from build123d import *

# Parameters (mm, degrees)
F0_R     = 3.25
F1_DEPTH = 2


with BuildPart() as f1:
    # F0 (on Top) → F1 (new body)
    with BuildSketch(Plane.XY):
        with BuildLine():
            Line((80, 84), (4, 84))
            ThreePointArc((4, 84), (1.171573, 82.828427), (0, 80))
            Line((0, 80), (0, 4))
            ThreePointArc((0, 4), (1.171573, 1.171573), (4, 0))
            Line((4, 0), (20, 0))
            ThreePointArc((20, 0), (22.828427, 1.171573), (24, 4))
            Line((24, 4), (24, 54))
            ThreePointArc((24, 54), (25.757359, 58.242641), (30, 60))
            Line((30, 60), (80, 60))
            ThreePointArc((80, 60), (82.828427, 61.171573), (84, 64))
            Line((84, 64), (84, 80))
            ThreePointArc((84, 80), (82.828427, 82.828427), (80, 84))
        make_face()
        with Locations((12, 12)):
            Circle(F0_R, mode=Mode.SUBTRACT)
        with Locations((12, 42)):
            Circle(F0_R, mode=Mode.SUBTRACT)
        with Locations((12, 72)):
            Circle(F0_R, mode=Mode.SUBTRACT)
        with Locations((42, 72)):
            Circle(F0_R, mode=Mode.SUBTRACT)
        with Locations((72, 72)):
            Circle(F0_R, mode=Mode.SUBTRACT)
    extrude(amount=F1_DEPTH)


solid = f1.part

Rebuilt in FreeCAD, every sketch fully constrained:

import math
import FreeCAD as App
import Part
import Sketcher

doc = App.newDocument("Part")
body = doc.addObject("PartDesign::Body", "Body")

# Sketch on XY plane
sketch1 = body.newObject("Sketcher::SketchObject", "Sketch")
sketch1.AttachmentSupport = (doc.getObject("XY_Plane"), [""])
sketch1.MapMode = "FlatFace"
sketch1.addGeometry([
    Part.LineSegment(App.Vector(80, 84, 0), App.Vector(4, 84, 0)),  # 0
    Part.ArcOfCircle(Part.Circle(App.Vector(4, 80, 0), App.Vector(0, 0, 1), 4), math.radians(90), math.radians(180)),  # 1
    Part.LineSegment(App.Vector(0, 80, 0), App.Vector(0, 4, 0)),  # 2
    Part.ArcOfCircle(Part.Circle(App.Vector(4, 4, 0), App.Vector(0, 0, 1), 4), math.radians(-180), math.radians(-90)),  # 3
    Part.LineSegment(App.Vector(4, 0, 0), App.Vector(20, 0, 0)),  # 4
    Part.ArcOfCircle(Part.Circle(App.Vector(20, 4, 0), App.Vector(0, 0, 1), 4), math.radians(-90), math.radians(0)),  # 5
    Part.LineSegment(App.Vector(24, 4, 0), App.Vector(24, 54, 0)),  # 6
    Part.ArcOfCircle(Part.Circle(App.Vector(30, 54, 0), App.Vector(0, 0, 1), 6), math.radians(90), math.radians(180)),  # 7
    Part.LineSegment(App.Vector(30, 60, 0), App.Vector(80, 60, 0)),  # 8
    Part.ArcOfCircle(Part.Circle(App.Vector(80, 64, 0), App.Vector(0, 0, 1), 4), math.radians(-90), math.radians(0)),  # 9
    Part.LineSegment(App.Vector(84, 64, 0), App.Vector(84, 80, 0)),  # 10
    Part.ArcOfCircle(Part.Circle(App.Vector(80, 80, 0), App.Vector(0, 0, 1), 4), math.radians(0), math.radians(90)),  # 11
    Part.Circle(App.Vector(12, 12, 0), App.Vector(0, 0, 1), 3.2),  # 12
    Part.Circle(App.Vector(12, 42, 0), App.Vector(0, 0, 1), 3.2),  # 13
    Part.Circle(App.Vector(12, 72, 0), App.Vector(0, 0, 1), 3.2),  # 14
    Part.Circle(App.Vector(42, 72, 0), App.Vector(0, 0, 1), 3.2),  # 15
    Part.Circle(App.Vector(72, 72, 0), App.Vector(0, 0, 1), 3.2),  # 16
], False)
sketch1.addConstraint([
    Sketcher.Constraint("Tangent", 0, 2, 1, 1),
    Sketcher.Constraint("Tangent", 1, 2, 2, 1),
    Sketcher.Constraint("Tangent", 2, 2, 3, 1),
    Sketcher.Constraint("Tangent", 3, 2, 4, 1),
    Sketcher.Constraint("Tangent", 4, 2, 5, 1),
    Sketcher.Constraint("Tangent", 5, 2, 6, 1),
    Sketcher.Constraint("Tangent", 6, 2, 7, 2),
    Sketcher.Constraint("Tangent", 7, 1, 8, 1),
    Sketcher.Constraint("Tangent", 8, 2, 9, 1),
    Sketcher.Constraint("Tangent", 9, 2, 10, 1),
    Sketcher.Constraint("Tangent", 10, 2, 11, 1),
    Sketcher.Constraint("Tangent", 11, 2, 0, 1),
    Sketcher.Constraint("Horizontal", 0),
    Sketcher.Constraint("Vertical", 2),
    Sketcher.Constraint("Horizontal", 4),
    Sketcher.Constraint("Vertical", 6),
    Sketcher.Constraint("Horizontal", 8),
    Sketcher.Constraint("Vertical", 10),
    Sketcher.Constraint("Equal", 1, 3),
    Sketcher.Constraint("Equal", 3, 5),
    Sketcher.Constraint("Equal", 5, 9),
    Sketcher.Constraint("Equal", 9, 11),
    Sketcher.Constraint("Equal", 12, 13),
    Sketcher.Constraint("Equal", 13, 14),
    Sketcher.Constraint("Equal", 14, 15),
    Sketcher.Constraint("Equal", 15, 16),
    Sketcher.Constraint("PointOnObject", 1, 2, -2),
    Sketcher.Constraint("PointOnObject", 3, 2, -1),
    Sketcher.Constraint("Horizontal", 14, 3, 15, 3),
    Sketcher.Constraint("Horizontal", 15, 3, 16, 3),
    Sketcher.Constraint("Vertical", 12, 3, 13, 3),
    Sketcher.Constraint("Vertical", 13, 3, 14, 3),
    Sketcher.Constraint("Equal", 0, 2),
    Sketcher.Constraint("Equal", 8, 6),
    Sketcher.Constraint("Radius", 1, 4.0),
    Sketcher.Constraint("Radius", 7, 5.999999),
    Sketcher.Constraint("Diameter", 12, 6.5),
    Sketcher.Constraint("DistanceX", 0, 2, 0, 1, 76.0),
    Sketcher.Constraint("DistanceX", 4, 1, 4, 2, 16.0),
    Sketcher.Constraint("DistanceX", -1, 1, 12, 3, 12.0),
    Sketcher.Constraint("DistanceY", -1, 1, 12, 3, 12.0),
    Sketcher.Constraint("DistanceY", -1, 1, 13, 3, 42.0),
    Sketcher.Constraint("DistanceY", -1, 1, 14, 3, 72.0),
    Sketcher.Constraint("DistanceX", -1, 1, 15, 3, 42.0),
    Sketcher.Constraint("DistanceX", -1, 1, 16, 3, 72.0),
])
pad1 = body.newObject("PartDesign::Pad", "Pad")
pad1.Profile = sketch1
pad1.Length = 2

doc.recompute()
